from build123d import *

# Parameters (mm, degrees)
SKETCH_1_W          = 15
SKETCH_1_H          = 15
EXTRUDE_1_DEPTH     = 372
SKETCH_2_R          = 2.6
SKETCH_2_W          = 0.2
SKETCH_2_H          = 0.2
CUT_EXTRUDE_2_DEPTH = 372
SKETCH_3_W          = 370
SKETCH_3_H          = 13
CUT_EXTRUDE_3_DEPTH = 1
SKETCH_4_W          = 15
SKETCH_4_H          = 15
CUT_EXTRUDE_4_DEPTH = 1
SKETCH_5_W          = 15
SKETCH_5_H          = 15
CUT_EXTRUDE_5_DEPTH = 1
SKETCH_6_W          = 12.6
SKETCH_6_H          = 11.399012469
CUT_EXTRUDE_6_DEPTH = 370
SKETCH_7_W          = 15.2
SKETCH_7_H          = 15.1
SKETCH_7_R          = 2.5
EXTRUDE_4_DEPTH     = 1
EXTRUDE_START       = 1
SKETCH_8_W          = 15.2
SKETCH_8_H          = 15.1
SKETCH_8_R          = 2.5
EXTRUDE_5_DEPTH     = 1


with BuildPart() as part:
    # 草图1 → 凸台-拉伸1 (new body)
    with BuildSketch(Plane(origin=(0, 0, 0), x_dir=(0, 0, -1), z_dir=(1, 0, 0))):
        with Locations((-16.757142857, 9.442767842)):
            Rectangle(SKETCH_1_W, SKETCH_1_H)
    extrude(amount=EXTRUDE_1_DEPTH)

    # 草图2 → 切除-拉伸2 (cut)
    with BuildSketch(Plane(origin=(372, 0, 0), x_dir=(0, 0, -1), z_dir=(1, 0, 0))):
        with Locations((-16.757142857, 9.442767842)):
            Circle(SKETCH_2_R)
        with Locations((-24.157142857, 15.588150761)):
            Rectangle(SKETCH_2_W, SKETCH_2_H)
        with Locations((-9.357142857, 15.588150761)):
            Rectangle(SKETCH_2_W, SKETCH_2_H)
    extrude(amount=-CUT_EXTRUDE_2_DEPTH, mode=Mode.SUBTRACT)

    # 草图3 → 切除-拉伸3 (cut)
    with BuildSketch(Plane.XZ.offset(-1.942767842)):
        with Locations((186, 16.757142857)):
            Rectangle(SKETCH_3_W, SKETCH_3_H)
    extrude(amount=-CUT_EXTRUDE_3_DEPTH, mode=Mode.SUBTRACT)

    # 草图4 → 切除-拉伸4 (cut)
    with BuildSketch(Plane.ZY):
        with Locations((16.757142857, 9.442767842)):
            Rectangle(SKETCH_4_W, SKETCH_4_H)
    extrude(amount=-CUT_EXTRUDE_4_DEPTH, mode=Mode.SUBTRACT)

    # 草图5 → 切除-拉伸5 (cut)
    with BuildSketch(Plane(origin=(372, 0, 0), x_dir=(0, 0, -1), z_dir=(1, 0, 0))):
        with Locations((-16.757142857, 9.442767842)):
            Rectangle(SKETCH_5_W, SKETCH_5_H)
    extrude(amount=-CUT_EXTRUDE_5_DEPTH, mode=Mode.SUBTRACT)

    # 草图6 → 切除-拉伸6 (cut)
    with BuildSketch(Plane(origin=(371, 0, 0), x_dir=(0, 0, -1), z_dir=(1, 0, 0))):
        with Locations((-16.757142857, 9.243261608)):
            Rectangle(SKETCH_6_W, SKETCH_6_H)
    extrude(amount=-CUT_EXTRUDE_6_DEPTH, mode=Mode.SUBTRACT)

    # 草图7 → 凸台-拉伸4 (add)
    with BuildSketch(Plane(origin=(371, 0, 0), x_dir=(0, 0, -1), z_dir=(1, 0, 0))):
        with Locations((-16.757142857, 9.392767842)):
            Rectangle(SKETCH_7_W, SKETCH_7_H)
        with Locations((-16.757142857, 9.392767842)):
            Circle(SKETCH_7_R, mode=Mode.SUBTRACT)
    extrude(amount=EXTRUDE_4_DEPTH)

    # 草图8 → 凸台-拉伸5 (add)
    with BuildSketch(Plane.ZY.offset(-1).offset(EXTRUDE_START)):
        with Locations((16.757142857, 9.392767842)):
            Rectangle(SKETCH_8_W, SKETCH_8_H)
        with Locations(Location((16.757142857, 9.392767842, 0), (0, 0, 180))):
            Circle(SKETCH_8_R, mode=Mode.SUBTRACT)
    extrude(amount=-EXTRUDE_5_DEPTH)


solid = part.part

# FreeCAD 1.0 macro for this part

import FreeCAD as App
import Part
import Sketcher
from FreeCAD import Vector

doc = App.newDocument("Part")
body = doc.addObject("PartDesign::Body", "Body")

# Sketch on YZ plane
sketch1 = body.newObject("Sketcher::SketchObject", "Sketch")
sketch1.AttachmentSupport = (doc.getObject("YZ_Plane"), [""])
sketch1.MapMode = "FlatFace"
sketch1.addGeometry([
    Part.LineSegment(Vector(17, 24, 0), Vector(2, 24, 0)),
    Part.LineSegment(Vector(2, 24, 0), Vector(2, 9, 0)),
    Part.LineSegment(Vector(2, 9, 0), Vector(17, 9, 0)),
    Part.LineSegment(Vector(17, 9, 0), Vector(17, 24, 0)),
], False)
sketch1.addConstraint([
    Sketcher.Constraint("Coincident", 0, 2, 1, 1),
    Sketcher.Constraint("Coincident", 1, 2, 2, 1),
    Sketcher.Constraint("Coincident", 2, 2, 3, 1),
    Sketcher.Constraint("Coincident", 3, 2, 0, 1),
    Sketcher.Constraint("Horizontal", 0),
    Sketcher.Constraint("Vertical", 1),
    Sketcher.Constraint("Horizontal", 2),
    Sketcher.Constraint("Vertical", 3),
    Sketcher.Constraint("Equal", 2, 1),
    Sketcher.Constraint("DistanceX", 0, 2, 0, 1, 15.0),
    Sketcher.Constraint("DistanceX", -1, 1, 0, 2, 1.942768),
    Sketcher.Constraint("DistanceY", -1, 1, 0, 2, 24.257143),
])
pad1 = body.newObject("PartDesign::Pad", "Pad")
pad1.Profile = sketch1
pad1.Length = 372

# Sketch on YZ plane
sketch2 = body.newObject("Sketcher::SketchObject", "Sketch001")
sketch2.AttachmentSupport = (doc.getObject("YZ_Plane"), [""])
sketch2.MapMode = "FlatFace"
sketch2.AttachmentOffset = App.Placement(Vector(0, 0, 372), App.Rotation())
sketch2.addGeometry([
    Part.Circle(Vector(9.44, 16.76, 0), Vector(0, 0, 1), 2.6),  # 0
    Part.LineSegment(Vector(15.69, 24.26, 0), Vector(15.49, 24.26, 0)),  # 1
    Part.LineSegment(Vector(15.49, 24.26, 0), Vector(15.49, 24.06, 0)),  # 2
    Part.LineSegment(Vector(15.49, 24.06, 0), Vector(15.69, 24.06, 0)),  # 3
    Part.LineSegment(Vector(15.69, 24.06, 0), Vector(15.69, 24.26, 0)),  # 4
    Part.LineSegment(Vector(15.69, 9.46, 0), Vector(15.49, 9.46, 0)),  # 5
    Part.LineSegment(Vector(15.49, 9.46, 0), Vector(15.49, 9.26, 0)),  # 6
    Part.LineSegment(Vector(15.49, 9.26, 0), Vector(15.69, 9.26, 0)),  # 7
    Part.LineSegment(Vector(15.69, 9.26, 0), Vector(15.69, 9.46, 0)),  # 8
], False)
sketch2.addConstraint([
    Sketcher.Constraint("Coincident", 1, 2, 2, 1),
    Sketcher.Constraint("Coincident", 2, 2, 3, 1),
    Sketcher.Constraint("Coincident", 3, 2, 4, 1),
    Sketcher.Constraint("Coincident", 4, 2, 1, 1),
    Sketcher.Constraint("Coincident", 5, 2, 6, 1),
    Sketcher.Constraint("Coincident", 6, 2, 7, 1),
    Sketcher.Constraint("Coincident", 7, 2, 8, 1),
    Sketcher.Constraint("Coincident", 8, 2, 5, 1),
    Sketcher.Constraint("Horizontal", 1),
    Sketcher.Constraint("Vertical", 2),
    Sketcher.Constraint("Horizontal", 3),
    Sketcher.Constraint("Vertical", 4),
    Sketcher.Constraint("Horizontal", 5),
    Sketcher.Constraint("Vertical", 6),
    Sketcher.Constraint("Horizontal", 7),
    Sketcher.Constraint("Vertical", 8),
    Sketcher.Constraint("Vertical", 2, 2, 5, 2),
    Sketcher.Constraint("Vertical", 4, 2, 7, 2),
    Sketcher.Constraint("Equal", 7, 2),
    Sketcher.Constraint("Equal", 4, 6),
    Sketcher.Constraint("Diameter", 0, 5.2),
    Sketcher.Constraint("DistanceX", 1, 2, 1, 1, 0.2),
    Sketcher.Constraint("DistanceY", 6, 2, 1, 2, 15.0),
    Sketcher.Constraint("DistanceY", 0, 3, 1, 2, 7.5),
    Sketcher.Constraint("DistanceX", -1, 1, 1, 2, 15.488151),
    Sketcher.Constraint("DistanceX", -1, 1, 0, 3, 9.442768),
    Sketcher.Constraint("DistanceY", -1, 1, 0, 3, 16.757143),
])
pocket1 = body.newObject("PartDesign::Pocket", "Pocket")
pocket1.Profile = sketch2
pocket1.Length = 372

# Sketch on XZ plane
sketch3 = body.newObject("Sketcher::SketchObject", "Sketch002")
sketch3.AttachmentSupport = (doc.getObject("XZ_Plane"), [""])
sketch3.MapMode = "FlatFace"
sketch3.AttachmentOffset = App.Placement(Vector(0, 0, -1.942768), App.Rotation())
sketch3.addGeometry([
    Part.LineSegment(Vector(1, 23, 0), Vector(1, 10, 0)),
    Part.LineSegment(Vector(1, 10, 0), Vector(371, 10, 0)),
    Part.LineSegment(Vector(371, 10, 0), Vector(371, 23, 0)),
    Part.LineSegment(Vector(371, 23, 0), Vector(1, 23, 0)),
], False)
sketch3.addConstraint([
    Sketcher.Constraint("Coincident", 0, 2, 1, 1),
    Sketcher.Constraint("Coincident", 1, 2, 2, 1),
    Sketcher.Constraint("Coincident", 2, 2, 3, 1),
    Sketcher.Constraint("Coincident", 3, 2, 0, 1),
    Sketcher.Constraint("Vertical", 0),
    Sketcher.Constraint("Horizontal", 1),
    Sketcher.Constraint("Vertical", 2),
    Sketcher.Constraint("Horizontal", 3),
    Sketcher.Constraint("DistanceX", 1, 1, 1, 2, 370.0),
    Sketcher.Constraint("DistanceY", 0, 2, 0, 1, 13.0),
    Sketcher.Constraint("DistanceX", -1, 1, 0, 2, 1.0),
    Sketcher.Constraint("DistanceY", -1, 1, 0, 2, 10.257143),
])
pocket2 = body.newObject("PartDesign::Pocket", "Pocket001")
pocket2.Profile = sketch3
pocket2.Length = 1

# Sketch on YZ plane
sketch4 = body.newObject("Sketcher::SketchObject", "Sketch003")
sketch4.AttachmentSupport = (doc.getObject("YZ_Plane"), [""])
sketch4.MapMode = "FlatFace"
sketch4.addGeometry([
    Part.LineSegment(Vector(17, 9, 0), Vector(2, 9, 0)),
    Part.LineSegment(Vector(2, 9, 0), Vector(2, 24, 0)),
    Part.LineSegment(Vector(2, 24, 0), Vector(17, 24, 0)),
    Part.LineSegment(Vector(17, 24, 0), Vector(17, 9, 0)),
], False)
sketch4.addConstraint([
    Sketcher.Constraint("Coincident", 0, 2, 1, 1),
    Sketcher.Constraint("Coincident", 1, 2, 2, 1),
    Sketcher.Constraint("Coincident", 2, 2, 3, 1),
    Sketcher.Constraint("Coincident", 3, 2, 0, 1),
    Sketcher.Constraint("Horizontal", 0),
    Sketcher.Constraint("Vertical", 1),
    Sketcher.Constraint("Horizontal", 2),
    Sketcher.Constraint("Vertical", 3),
    Sketcher.Constraint("Equal", 2, 1),
    Sketcher.Constraint("DistanceX", 0, 2, 0, 1, 15.0),
    Sketcher.Constraint("DistanceX", -1, 1, 0, 2, 1.942768),
    Sketcher.Constraint("DistanceY", -1, 1, 0, 2, 9.257143),
])
pocket3 = body.newObject("PartDesign::Pocket", "Pocket002")
pocket3.Profile = sketch4
pocket3.Length = 1
pocket3.Reversed = True

# Sketch on YZ plane
sketch5 = body.newObject("Sketcher::SketchObject", "Sketch004")
sketch5.AttachmentSupport = (doc.getObject("YZ_Plane"), [""])
sketch5.MapMode = "FlatFace"
sketch5.AttachmentOffset = App.Placement(Vector(0, 0, 372), App.Rotation())
sketch5.addGeometry([
    Part.LineSegment(Vector(17, 24, 0), Vector(2, 24, 0)),
    Part.LineSegment(Vector(2, 24, 0), Vector(2, 9, 0)),
    Part.LineSegment(Vector(2, 9, 0), Vector(17, 9, 0)),
    Part.LineSegment(Vector(17, 9, 0), Vector(17, 24, 0)),
], False)
sketch5.addConstraint([
    Sketcher.Constraint("Coincident", 0, 2, 1, 1),
    Sketcher.Constraint("Coincident", 1, 2, 2, 1),
    Sketcher.Constraint("Coincident", 2, 2, 3, 1),
    Sketcher.Constraint("Coincident", 3, 2, 0, 1),
    Sketcher.Constraint("Horizontal", 0),
    Sketcher.Constraint("Vertical", 1),
    Sketcher.Constraint("Horizontal", 2),
    Sketcher.Constraint("Vertical", 3),
    Sketcher.Constraint("Equal", 2, 1),
    Sketcher.Constraint("DistanceX", 0, 2, 0, 1, 15.0),
    Sketcher.Constraint("DistanceX", -1, 1, 0, 2, 1.942768),
    Sketcher.Constraint("DistanceY", -1, 1, 0, 2, 24.257143),
])
pocket4 = body.newObject("PartDesign::Pocket", "Pocket003")
pocket4.Profile = sketch5
pocket4.Length = 1

# Sketch on YZ plane
sketch6 = body.newObject("Sketcher::SketchObject", "Sketch005")
sketch6.AttachmentSupport = (doc.getObject("YZ_Plane"), [""])
sketch6.MapMode = "FlatFace"
sketch6.AttachmentOffset = App.Placement(Vector(0, 0, 371), App.Rotation())
sketch6.addGeometry([
    Part.LineSegment(Vector(15, 23, 0), Vector(4, 23, 0)),
    Part.LineSegment(Vector(4, 23, 0), Vector(4, 10, 0)),
    Part.LineSegment(Vector(4, 10, 0), Vector(15, 10, 0)),
    Part.LineSegment(Vector(15, 10, 0), Vector(15, 23, 0)),
], False)
sketch6.addConstraint([
    Sketcher.Constraint("Coincident", 0, 2, 1, 1),
    Sketcher.Constraint("Coincident", 1, 2, 2, 1),
    Sketcher.Constraint("Coincident", 2, 2, 3, 1),
    Sketcher.Constraint("Coincident", 3, 2, 0, 1),
    Sketcher.Constraint("Horizontal", 0),
    Sketcher.Constraint("Vertical", 1),
    Sketcher.Constraint("Horizontal", 2),
    Sketcher.Constraint("Vertical", 3),
    Sketcher.Constraint("DistanceY", 1, 2, 1, 1, 12.6),
    Sketcher.Constraint("DistanceX", 0, 2, 0, 1, 11.399012),
    Sketcher.Constraint("DistanceX", -1, 1, 0, 2, 3.543755),
    Sketcher.Constraint("DistanceY", -1, 1, 0, 2, 23.057143),
])
pocket5 = body.newObject("PartDesign::Pocket", "Pocket004")
pocket5.Profile = sketch6
pocket5.Length = 370

# Sketch on YZ plane
sketch7 = body.newObject("Sketcher::SketchObject", "Sketch006")
sketch7.AttachmentSupport = (doc.getObject("YZ_Plane"), [""])
sketch7.MapMode = "FlatFace"
sketch7.AttachmentOffset = App.Placement(Vector(0, 0, 371), App.Rotation())
sketch7.addGeometry([
    Part.LineSegment(Vector(16.9, 24.4, 0), Vector(1.8, 24.4, 0)),  # 0
    Part.LineSegment(Vector(1.8, 24.4, 0), Vector(1.8, 9.2, 0)),  # 1
    Part.LineSegment(Vector(1.8, 9.2, 0), Vector(16.9, 9.2, 0)),  # 2
    Part.LineSegment(Vector(16.9, 9.2, 0), Vector(16.9, 24.4, 0)),  # 3
    Part.Circle(Vector(9.4, 16.8, 0), Vector(0, 0, 1), 2.5),  # 4
], False)
sketch7.addConstraint([
    Sketcher.Constraint("Coincident", 0, 2, 1, 1),
    Sketcher.Constraint("Coincident", 1, 2, 2, 1),
    Sketcher.Constraint("Coincident", 2, 2, 3, 1),
    Sketcher.Constraint("Coincident", 3, 2, 0, 1),
    Sketcher.Constraint("Horizontal", 0),
    Sketcher.Constraint("Vertical", 1),
    Sketcher.Constraint("Horizontal", 2),
    Sketcher.Constraint("Vertical", 3),
    Sketcher.Constraint("Diameter", 4, 5.0),
    Sketcher.Constraint("DistanceX", 0, 2, 0, 1, 15.1),
    Sketcher.Constraint("DistanceY", 1, 2, 1, 1, 15.2),
    Sketcher.Constraint("DistanceY", 4, 3, 0, 2, 7.6),
    Sketcher.Constraint("DistanceX", 0, 2, 4, 3, 7.55),
    Sketcher.Constraint("DistanceX", -1, 1, 4, 3, 9.392768),
    Sketcher.Constraint("DistanceY", -1, 1, 4, 3, 16.757143),
])
pad2 = body.newObject("PartDesign::Pad", "Pad001")
pad2.Profile = sketch7
pad2.Length = 1

# Sketch on YZ plane
sketch8 = body.newObject("Sketcher::SketchObject", "Sketch007")
sketch8.AttachmentSupport = (doc.getObject("YZ_Plane"), [""])
sketch8.MapMode = "FlatFace"
sketch8.addGeometry([
    Part.LineSegment(Vector(16.9, 9.2, 0), Vector(1.8, 9.2, 0)),  # 0
    Part.LineSegment(Vector(1.8, 9.2, 0), Vector(1.8, 24.4, 0)),  # 1
    Part.LineSegment(Vector(1.8, 24.4, 0), Vector(16.9, 24.4, 0)),  # 2
    Part.LineSegment(Vector(16.9, 24.4, 0), Vector(16.9, 9.2, 0)),  # 3
    Part.Circle(Vector(9.4, 16.8, 0), Vector(0, 0, 1), 2.5),  # 4
], False)
sketch8.addConstraint([
    Sketcher.Constraint("Coincident", 0, 2, 1, 1),
    Sketcher.Constraint("Coincident", 1, 2, 2, 1),
    Sketcher.Constraint("Coincident", 2, 2, 3, 1),
    Sketcher.Constraint("Coincident", 3, 2, 0, 1),
    Sketcher.Constraint("Horizontal", 0),
    Sketcher.Constraint("Vertical", 1),
    Sketcher.Constraint("Horizontal", 2),
    Sketcher.Constraint("Vertical", 3),
    Sketcher.Constraint("Diameter", 4, 5.0),
    Sketcher.Constraint("DistanceX", 0, 2, 0, 1, 15.1),
    Sketcher.Constraint("DistanceY", 1, 1, 1, 2, 15.2),
    Sketcher.Constraint("DistanceY", 0, 2, 4, 3, 7.6),
    Sketcher.Constraint("DistanceX", 0, 2, 4, 3, 7.55),
    Sketcher.Constraint("DistanceX", -1, 1, 4, 3, 9.392768),
    Sketcher.Constraint("DistanceY", -1, 1, 4, 3, 16.757143),
])
pad3 = body.newObject("PartDesign::Pad", "Pad002")
pad3.Profile = sketch8
pad3.Length = 1

doc.recompute()
